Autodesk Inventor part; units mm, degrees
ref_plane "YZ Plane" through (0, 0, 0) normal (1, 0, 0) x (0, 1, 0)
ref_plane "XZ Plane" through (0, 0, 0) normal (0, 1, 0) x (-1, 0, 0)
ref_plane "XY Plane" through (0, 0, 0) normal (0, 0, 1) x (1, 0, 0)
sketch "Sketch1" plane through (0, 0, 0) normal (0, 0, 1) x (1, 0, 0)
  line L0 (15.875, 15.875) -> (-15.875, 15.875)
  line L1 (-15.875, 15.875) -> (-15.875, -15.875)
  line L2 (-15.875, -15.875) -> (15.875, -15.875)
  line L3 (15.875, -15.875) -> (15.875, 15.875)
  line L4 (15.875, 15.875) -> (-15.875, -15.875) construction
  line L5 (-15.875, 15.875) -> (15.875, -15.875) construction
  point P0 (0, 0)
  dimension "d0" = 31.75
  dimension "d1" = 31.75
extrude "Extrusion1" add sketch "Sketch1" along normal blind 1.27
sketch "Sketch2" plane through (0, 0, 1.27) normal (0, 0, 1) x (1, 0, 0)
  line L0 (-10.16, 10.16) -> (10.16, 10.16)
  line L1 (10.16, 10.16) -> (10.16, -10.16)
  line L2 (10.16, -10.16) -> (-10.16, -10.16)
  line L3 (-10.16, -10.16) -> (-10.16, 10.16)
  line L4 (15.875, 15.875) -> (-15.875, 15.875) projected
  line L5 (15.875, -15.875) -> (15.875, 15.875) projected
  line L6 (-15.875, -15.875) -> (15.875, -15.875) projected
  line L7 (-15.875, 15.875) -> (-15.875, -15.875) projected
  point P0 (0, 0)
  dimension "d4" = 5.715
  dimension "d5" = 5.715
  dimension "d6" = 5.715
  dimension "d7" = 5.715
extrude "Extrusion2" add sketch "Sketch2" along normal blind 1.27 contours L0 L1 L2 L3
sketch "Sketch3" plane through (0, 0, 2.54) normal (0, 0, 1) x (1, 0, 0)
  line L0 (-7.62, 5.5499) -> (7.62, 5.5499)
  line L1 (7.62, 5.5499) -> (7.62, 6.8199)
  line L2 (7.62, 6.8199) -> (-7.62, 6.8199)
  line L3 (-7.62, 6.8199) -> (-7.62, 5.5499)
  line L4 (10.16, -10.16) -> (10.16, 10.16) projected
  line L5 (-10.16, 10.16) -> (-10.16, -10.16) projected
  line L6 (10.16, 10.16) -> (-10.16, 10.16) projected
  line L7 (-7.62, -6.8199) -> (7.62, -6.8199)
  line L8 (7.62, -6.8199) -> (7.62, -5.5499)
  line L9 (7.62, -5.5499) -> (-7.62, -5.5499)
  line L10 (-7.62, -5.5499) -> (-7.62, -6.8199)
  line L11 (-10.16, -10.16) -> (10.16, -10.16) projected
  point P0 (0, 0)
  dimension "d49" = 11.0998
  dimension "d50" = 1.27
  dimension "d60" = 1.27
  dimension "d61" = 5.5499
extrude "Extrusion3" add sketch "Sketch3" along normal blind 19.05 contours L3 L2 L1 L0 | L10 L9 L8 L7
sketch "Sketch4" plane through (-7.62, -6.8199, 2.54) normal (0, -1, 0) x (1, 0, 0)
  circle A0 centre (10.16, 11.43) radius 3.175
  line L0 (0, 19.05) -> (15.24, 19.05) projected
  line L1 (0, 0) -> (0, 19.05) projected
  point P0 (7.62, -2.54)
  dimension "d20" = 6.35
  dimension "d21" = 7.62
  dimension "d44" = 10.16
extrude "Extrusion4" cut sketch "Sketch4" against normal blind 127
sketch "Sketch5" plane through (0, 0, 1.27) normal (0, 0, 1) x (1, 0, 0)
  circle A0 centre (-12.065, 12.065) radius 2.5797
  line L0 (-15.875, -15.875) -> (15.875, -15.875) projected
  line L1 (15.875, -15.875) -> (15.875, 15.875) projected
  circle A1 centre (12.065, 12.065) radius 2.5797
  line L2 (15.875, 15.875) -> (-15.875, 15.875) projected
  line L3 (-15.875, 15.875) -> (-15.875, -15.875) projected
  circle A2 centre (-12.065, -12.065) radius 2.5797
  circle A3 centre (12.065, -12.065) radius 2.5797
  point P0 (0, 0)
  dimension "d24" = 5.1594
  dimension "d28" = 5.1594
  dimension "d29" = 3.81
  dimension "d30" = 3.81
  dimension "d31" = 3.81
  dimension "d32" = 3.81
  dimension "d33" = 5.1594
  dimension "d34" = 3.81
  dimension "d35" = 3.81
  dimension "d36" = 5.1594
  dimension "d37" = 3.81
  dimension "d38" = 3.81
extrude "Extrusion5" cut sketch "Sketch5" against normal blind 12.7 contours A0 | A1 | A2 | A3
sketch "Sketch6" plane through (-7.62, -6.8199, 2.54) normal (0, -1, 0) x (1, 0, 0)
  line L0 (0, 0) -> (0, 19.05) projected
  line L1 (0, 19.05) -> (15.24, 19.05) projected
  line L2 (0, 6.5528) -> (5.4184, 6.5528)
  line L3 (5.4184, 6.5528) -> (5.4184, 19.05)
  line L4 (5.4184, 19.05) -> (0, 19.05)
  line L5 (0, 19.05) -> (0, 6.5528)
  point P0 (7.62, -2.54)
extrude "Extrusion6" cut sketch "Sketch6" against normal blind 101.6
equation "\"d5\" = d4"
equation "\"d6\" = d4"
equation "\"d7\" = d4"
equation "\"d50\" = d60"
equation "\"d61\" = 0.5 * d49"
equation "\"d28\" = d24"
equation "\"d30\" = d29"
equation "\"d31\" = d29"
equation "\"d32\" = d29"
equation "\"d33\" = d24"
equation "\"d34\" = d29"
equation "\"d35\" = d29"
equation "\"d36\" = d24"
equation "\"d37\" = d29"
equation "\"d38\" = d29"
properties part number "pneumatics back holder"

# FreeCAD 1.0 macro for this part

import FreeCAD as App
import Part
import Sketcher
from FreeCAD import Vector
Q = App.Units.Quantity


def add_polygon(sketch, points):
    """Adds a closed chain of lines whose ends are joined by coincident constraints."""
    first, n = sketch.GeometryCount, len(points)
    for a, b in zip(points, points[1:] + points[:1]):
        sketch.addGeometry(Part.LineSegment(App.Vector(*a, 0), App.Vector(*b, 0)), False)
    for i in range(n):
        sketch.addConstraint(Sketcher.Constraint("Coincident", first + i, 2, first + (i + 1) % n, 1))

doc = App.newDocument("Part")
body = doc.addObject("PartDesign::Body", "Body")

# Sketch on XY plane
sketch1 = body.newObject("Sketcher::SketchObject", "Sketch")
sketch1.AttachmentSupport = (doc.getObject("XY_Plane"), [""])
sketch1.MapMode = "FlatFace"
add_polygon(sketch1, [(16, -16), (16, 16), (-16, 16), (-16, -16)])  # lines 0-3
sketch1.addConstraint([
    Sketcher.Constraint("Vertical", 0),
    Sketcher.Constraint("Horizontal", 1),
    Sketcher.Constraint("Vertical", 2),
    Sketcher.Constraint("Horizontal", 3),
    Sketcher.Constraint("Symmetric", 0, 2, 2, 2, -1, 1),
    Sketcher.Constraint("Equal", 3, 0),
    Sketcher.Constraint("DistanceX", 1, 2, 1, 1, Q("1.25 in")),
])
pad1 = body.newObject("PartDesign::Pad", "Pad")
pad1.Profile = sketch1
pad1.Length = Q("0.05 in")

# Sketch on XY plane
sketch2 = body.newObject("Sketcher::SketchObject", "Sketch001")
sketch2.AttachmentSupport = (doc.getObject("XY_Plane"), [""])
sketch2.MapMode = "FlatFace"
sketch2.AttachmentOffset = App.Placement(Vector(0, 0, 0.05 * 25.4), App.Rotation())
add_polygon(sketch2, [(10, 10), (-10, 10), (-10, -10), (10, -10)])  # lines 0-3
sketch2.addConstraint([
    Sketcher.Constraint("Horizontal", 0),
    Sketcher.Constraint("Vertical", 1),
    Sketcher.Constraint("Horizontal", 2),
    Sketcher.Constraint("Vertical", 3),
    Sketcher.Constraint("Symmetric", 0, 2, 2, 2, -1, 1),
    Sketcher.Constraint("Equal", 2, 1),
    Sketcher.Constraint("DistanceX", 0, 2, 0, 1, Q("0.8 in")),
])
pad2 = body.newObject("PartDesign::Pad", "Pad001")
pad2.Profile = sketch2
pad2.Length = Q("0.05 in")

# Sketch on XY plane
sketch3 = body.newObject("Sketcher::SketchObject", "Sketch002")
sketch3.AttachmentSupport = (doc.getObject("XY_Plane"), [""])
sketch3.MapMode = "FlatFace"
sketch3.AttachmentOffset = App.Placement(Vector(0, 0, 0.1 * 25.4), App.Rotation())
add_polygon(sketch3, [(-7.6, 6.8), (-7.6, 5.5), (7.6, 5.5), (7.6, 6.8)])  # lines 0-3
add_polygon(sketch3, [(-7.6, -5.5), (-7.6, -6.8), (7.6, -6.8), (7.6, -5.5)])  # lines 4-7
sketch3.addConstraint([
    Sketcher.Constraint("Vertical", 0),
    Sketcher.Constraint("Horizontal", 1),
    Sketcher.Constraint("Vertical", 2),
    Sketcher.Constraint("Horizontal", 3),
    Sketcher.Constraint("Vertical", 4),
    Sketcher.Constraint("Horizontal", 5),
    Sketcher.Constraint("Vertical", 6),
    Sketcher.Constraint("Horizontal", 7),
    Sketcher.Constraint("Symmetric", 2, 2, 4, 2, -1, 1),
    Sketcher.Constraint("Symmetric", 0, 2, 6, 2, -1, 1),
    Sketcher.Constraint("Vertical", 3, 2, 4, 2),
    Sketcher.Constraint("DistanceY", 0, 2, 0, 1, Q("0.05 in")),
    Sketcher.Constraint("DistanceX", 1, 1, 1, 2, Q("0.6 in")),
    Sketcher.Constraint("DistanceY", 6, 2, 1, 2, Q("0.437 in")),
])
pad3 = body.newObject("PartDesign::Pad", "Pad002")
pad3.Profile = sketch3
pad3.Length = Q("0.75 in")

# Sketch on XZ plane
sketch4 = body.newObject("Sketcher::SketchObject", "Sketch003")
sketch4.AttachmentSupport = (doc.getObject("XZ_Plane"), [""])
sketch4.MapMode = "FlatFace"
sketch4.AttachmentOffset = App.Placement(Vector(0, 0, 0.2685 * 25.4), App.Rotation())
sketch4.addGeometry(Part.Circle(Vector(2.5, 14, 0), Vector(0, 0, 1), 3.2), False)
sketch4.addConstraint([
    Sketcher.Constraint("Diameter", 0, Q("0.25 in")),
    Sketcher.Constraint("DistanceX", -1, 1, 0, 3, Q("0.1 in")),
    Sketcher.Constraint("DistanceY", -1, 1, 0, 3, Q("0.55 in")),
])
pocket1 = body.newObject("PartDesign::Pocket", "Pocket")
pocket1.Profile = sketch4
pocket1.Length = Q("5 in")

# Sketch on XY plane
sketch5 = body.newObject("Sketcher::SketchObject", "Sketch004")
sketch5.AttachmentSupport = (doc.getObject("XY_Plane"), [""])
sketch5.MapMode = "FlatFace"
sketch5.AttachmentOffset = App.Placement(Vector(0, 0, 0.05 * 25.4), App.Rotation())
sketch5.addGeometry([
    Part.Circle(Vector(-12.1, 12.1, 0), Vector(0, 0, 1), 2.6),
    Part.Circle(Vector(12.1, 12.1, 0), Vector(0, 0, 1), 2.6),
    Part.Circle(Vector(-12.1, -12.1, 0), Vector(0, 0, 1), 2.6),
    Part.Circle(Vector(12.1, -12.1, 0), Vector(0, 0, 1), 2.6),
], False)
sketch5.addConstraint([
    Sketcher.Constraint("Equal", 0, 1),
    Sketcher.Constraint("Equal", 1, 2),
    Sketcher.Constraint("Equal", 2, 3),
    Sketcher.Constraint("Symmetric", 1, 3, 2, 3, -1, 1),
    Sketcher.Constraint("Symmetric", 0, 3, 3, 3, -1, 1),
    Sketcher.Constraint("Symmetric", 0, 3, 1, 3, -2),
    Sketcher.Constraint("Diameter", 0, Q("0.203126 in")),
    Sketcher.Constraint("DistanceX", 0, 3, 1, 3, Q("0.95 in")),
    Sketcher.Constraint("DistanceY", 2, 3, 0, 3, Q("0.95 in")),
])
pocket2 = body.newObject("PartDesign::Pocket", "Pocket001")
pocket2.Profile = sketch5
pocket2.Length = Q("0.5 in")

# Sketch on XZ plane
sketch6 = body.newObject("Sketcher::SketchObject", "Sketch005")
sketch6.AttachmentSupport = (doc.getObject("XZ_Plane"), [""])
sketch6.MapMode = "FlatFace"
sketch6.AttachmentOffset = App.Placement(Vector(0, 0, 0.2685 * 25.4), App.Rotation())
add_polygon(sketch6, [(-8, 22), (-8, 9), (-2, 9), (-2, 22)])  # lines 0-3
sketch6.addConstraint([
    Sketcher.Constraint("Vertical", 0),
    Sketcher.Constraint("Horizontal", 1),
    Sketcher.Constraint("Vertical", 2),
    Sketcher.Constraint("Horizontal", 3),
    Sketcher.Constraint("DistanceX", 0, 2, -1, 1, Q("0.3 in")),
    Sketcher.Constraint("DistanceY", -1, 1, 2, 2, Q("0.85 in")),
    Sketcher.Constraint("DistanceX", 1, 1, 1, 2, Q("5.4184 mm")),
    Sketcher.Constraint("DistanceY", 0, 2, 0, 1, Q("12.4972 mm")),
])
pocket3 = body.newObject("PartDesign::Pocket", "Pocket002")
pocket3.Profile = sketch6
pocket3.Length = Q("4 in")

doc.recompute()
